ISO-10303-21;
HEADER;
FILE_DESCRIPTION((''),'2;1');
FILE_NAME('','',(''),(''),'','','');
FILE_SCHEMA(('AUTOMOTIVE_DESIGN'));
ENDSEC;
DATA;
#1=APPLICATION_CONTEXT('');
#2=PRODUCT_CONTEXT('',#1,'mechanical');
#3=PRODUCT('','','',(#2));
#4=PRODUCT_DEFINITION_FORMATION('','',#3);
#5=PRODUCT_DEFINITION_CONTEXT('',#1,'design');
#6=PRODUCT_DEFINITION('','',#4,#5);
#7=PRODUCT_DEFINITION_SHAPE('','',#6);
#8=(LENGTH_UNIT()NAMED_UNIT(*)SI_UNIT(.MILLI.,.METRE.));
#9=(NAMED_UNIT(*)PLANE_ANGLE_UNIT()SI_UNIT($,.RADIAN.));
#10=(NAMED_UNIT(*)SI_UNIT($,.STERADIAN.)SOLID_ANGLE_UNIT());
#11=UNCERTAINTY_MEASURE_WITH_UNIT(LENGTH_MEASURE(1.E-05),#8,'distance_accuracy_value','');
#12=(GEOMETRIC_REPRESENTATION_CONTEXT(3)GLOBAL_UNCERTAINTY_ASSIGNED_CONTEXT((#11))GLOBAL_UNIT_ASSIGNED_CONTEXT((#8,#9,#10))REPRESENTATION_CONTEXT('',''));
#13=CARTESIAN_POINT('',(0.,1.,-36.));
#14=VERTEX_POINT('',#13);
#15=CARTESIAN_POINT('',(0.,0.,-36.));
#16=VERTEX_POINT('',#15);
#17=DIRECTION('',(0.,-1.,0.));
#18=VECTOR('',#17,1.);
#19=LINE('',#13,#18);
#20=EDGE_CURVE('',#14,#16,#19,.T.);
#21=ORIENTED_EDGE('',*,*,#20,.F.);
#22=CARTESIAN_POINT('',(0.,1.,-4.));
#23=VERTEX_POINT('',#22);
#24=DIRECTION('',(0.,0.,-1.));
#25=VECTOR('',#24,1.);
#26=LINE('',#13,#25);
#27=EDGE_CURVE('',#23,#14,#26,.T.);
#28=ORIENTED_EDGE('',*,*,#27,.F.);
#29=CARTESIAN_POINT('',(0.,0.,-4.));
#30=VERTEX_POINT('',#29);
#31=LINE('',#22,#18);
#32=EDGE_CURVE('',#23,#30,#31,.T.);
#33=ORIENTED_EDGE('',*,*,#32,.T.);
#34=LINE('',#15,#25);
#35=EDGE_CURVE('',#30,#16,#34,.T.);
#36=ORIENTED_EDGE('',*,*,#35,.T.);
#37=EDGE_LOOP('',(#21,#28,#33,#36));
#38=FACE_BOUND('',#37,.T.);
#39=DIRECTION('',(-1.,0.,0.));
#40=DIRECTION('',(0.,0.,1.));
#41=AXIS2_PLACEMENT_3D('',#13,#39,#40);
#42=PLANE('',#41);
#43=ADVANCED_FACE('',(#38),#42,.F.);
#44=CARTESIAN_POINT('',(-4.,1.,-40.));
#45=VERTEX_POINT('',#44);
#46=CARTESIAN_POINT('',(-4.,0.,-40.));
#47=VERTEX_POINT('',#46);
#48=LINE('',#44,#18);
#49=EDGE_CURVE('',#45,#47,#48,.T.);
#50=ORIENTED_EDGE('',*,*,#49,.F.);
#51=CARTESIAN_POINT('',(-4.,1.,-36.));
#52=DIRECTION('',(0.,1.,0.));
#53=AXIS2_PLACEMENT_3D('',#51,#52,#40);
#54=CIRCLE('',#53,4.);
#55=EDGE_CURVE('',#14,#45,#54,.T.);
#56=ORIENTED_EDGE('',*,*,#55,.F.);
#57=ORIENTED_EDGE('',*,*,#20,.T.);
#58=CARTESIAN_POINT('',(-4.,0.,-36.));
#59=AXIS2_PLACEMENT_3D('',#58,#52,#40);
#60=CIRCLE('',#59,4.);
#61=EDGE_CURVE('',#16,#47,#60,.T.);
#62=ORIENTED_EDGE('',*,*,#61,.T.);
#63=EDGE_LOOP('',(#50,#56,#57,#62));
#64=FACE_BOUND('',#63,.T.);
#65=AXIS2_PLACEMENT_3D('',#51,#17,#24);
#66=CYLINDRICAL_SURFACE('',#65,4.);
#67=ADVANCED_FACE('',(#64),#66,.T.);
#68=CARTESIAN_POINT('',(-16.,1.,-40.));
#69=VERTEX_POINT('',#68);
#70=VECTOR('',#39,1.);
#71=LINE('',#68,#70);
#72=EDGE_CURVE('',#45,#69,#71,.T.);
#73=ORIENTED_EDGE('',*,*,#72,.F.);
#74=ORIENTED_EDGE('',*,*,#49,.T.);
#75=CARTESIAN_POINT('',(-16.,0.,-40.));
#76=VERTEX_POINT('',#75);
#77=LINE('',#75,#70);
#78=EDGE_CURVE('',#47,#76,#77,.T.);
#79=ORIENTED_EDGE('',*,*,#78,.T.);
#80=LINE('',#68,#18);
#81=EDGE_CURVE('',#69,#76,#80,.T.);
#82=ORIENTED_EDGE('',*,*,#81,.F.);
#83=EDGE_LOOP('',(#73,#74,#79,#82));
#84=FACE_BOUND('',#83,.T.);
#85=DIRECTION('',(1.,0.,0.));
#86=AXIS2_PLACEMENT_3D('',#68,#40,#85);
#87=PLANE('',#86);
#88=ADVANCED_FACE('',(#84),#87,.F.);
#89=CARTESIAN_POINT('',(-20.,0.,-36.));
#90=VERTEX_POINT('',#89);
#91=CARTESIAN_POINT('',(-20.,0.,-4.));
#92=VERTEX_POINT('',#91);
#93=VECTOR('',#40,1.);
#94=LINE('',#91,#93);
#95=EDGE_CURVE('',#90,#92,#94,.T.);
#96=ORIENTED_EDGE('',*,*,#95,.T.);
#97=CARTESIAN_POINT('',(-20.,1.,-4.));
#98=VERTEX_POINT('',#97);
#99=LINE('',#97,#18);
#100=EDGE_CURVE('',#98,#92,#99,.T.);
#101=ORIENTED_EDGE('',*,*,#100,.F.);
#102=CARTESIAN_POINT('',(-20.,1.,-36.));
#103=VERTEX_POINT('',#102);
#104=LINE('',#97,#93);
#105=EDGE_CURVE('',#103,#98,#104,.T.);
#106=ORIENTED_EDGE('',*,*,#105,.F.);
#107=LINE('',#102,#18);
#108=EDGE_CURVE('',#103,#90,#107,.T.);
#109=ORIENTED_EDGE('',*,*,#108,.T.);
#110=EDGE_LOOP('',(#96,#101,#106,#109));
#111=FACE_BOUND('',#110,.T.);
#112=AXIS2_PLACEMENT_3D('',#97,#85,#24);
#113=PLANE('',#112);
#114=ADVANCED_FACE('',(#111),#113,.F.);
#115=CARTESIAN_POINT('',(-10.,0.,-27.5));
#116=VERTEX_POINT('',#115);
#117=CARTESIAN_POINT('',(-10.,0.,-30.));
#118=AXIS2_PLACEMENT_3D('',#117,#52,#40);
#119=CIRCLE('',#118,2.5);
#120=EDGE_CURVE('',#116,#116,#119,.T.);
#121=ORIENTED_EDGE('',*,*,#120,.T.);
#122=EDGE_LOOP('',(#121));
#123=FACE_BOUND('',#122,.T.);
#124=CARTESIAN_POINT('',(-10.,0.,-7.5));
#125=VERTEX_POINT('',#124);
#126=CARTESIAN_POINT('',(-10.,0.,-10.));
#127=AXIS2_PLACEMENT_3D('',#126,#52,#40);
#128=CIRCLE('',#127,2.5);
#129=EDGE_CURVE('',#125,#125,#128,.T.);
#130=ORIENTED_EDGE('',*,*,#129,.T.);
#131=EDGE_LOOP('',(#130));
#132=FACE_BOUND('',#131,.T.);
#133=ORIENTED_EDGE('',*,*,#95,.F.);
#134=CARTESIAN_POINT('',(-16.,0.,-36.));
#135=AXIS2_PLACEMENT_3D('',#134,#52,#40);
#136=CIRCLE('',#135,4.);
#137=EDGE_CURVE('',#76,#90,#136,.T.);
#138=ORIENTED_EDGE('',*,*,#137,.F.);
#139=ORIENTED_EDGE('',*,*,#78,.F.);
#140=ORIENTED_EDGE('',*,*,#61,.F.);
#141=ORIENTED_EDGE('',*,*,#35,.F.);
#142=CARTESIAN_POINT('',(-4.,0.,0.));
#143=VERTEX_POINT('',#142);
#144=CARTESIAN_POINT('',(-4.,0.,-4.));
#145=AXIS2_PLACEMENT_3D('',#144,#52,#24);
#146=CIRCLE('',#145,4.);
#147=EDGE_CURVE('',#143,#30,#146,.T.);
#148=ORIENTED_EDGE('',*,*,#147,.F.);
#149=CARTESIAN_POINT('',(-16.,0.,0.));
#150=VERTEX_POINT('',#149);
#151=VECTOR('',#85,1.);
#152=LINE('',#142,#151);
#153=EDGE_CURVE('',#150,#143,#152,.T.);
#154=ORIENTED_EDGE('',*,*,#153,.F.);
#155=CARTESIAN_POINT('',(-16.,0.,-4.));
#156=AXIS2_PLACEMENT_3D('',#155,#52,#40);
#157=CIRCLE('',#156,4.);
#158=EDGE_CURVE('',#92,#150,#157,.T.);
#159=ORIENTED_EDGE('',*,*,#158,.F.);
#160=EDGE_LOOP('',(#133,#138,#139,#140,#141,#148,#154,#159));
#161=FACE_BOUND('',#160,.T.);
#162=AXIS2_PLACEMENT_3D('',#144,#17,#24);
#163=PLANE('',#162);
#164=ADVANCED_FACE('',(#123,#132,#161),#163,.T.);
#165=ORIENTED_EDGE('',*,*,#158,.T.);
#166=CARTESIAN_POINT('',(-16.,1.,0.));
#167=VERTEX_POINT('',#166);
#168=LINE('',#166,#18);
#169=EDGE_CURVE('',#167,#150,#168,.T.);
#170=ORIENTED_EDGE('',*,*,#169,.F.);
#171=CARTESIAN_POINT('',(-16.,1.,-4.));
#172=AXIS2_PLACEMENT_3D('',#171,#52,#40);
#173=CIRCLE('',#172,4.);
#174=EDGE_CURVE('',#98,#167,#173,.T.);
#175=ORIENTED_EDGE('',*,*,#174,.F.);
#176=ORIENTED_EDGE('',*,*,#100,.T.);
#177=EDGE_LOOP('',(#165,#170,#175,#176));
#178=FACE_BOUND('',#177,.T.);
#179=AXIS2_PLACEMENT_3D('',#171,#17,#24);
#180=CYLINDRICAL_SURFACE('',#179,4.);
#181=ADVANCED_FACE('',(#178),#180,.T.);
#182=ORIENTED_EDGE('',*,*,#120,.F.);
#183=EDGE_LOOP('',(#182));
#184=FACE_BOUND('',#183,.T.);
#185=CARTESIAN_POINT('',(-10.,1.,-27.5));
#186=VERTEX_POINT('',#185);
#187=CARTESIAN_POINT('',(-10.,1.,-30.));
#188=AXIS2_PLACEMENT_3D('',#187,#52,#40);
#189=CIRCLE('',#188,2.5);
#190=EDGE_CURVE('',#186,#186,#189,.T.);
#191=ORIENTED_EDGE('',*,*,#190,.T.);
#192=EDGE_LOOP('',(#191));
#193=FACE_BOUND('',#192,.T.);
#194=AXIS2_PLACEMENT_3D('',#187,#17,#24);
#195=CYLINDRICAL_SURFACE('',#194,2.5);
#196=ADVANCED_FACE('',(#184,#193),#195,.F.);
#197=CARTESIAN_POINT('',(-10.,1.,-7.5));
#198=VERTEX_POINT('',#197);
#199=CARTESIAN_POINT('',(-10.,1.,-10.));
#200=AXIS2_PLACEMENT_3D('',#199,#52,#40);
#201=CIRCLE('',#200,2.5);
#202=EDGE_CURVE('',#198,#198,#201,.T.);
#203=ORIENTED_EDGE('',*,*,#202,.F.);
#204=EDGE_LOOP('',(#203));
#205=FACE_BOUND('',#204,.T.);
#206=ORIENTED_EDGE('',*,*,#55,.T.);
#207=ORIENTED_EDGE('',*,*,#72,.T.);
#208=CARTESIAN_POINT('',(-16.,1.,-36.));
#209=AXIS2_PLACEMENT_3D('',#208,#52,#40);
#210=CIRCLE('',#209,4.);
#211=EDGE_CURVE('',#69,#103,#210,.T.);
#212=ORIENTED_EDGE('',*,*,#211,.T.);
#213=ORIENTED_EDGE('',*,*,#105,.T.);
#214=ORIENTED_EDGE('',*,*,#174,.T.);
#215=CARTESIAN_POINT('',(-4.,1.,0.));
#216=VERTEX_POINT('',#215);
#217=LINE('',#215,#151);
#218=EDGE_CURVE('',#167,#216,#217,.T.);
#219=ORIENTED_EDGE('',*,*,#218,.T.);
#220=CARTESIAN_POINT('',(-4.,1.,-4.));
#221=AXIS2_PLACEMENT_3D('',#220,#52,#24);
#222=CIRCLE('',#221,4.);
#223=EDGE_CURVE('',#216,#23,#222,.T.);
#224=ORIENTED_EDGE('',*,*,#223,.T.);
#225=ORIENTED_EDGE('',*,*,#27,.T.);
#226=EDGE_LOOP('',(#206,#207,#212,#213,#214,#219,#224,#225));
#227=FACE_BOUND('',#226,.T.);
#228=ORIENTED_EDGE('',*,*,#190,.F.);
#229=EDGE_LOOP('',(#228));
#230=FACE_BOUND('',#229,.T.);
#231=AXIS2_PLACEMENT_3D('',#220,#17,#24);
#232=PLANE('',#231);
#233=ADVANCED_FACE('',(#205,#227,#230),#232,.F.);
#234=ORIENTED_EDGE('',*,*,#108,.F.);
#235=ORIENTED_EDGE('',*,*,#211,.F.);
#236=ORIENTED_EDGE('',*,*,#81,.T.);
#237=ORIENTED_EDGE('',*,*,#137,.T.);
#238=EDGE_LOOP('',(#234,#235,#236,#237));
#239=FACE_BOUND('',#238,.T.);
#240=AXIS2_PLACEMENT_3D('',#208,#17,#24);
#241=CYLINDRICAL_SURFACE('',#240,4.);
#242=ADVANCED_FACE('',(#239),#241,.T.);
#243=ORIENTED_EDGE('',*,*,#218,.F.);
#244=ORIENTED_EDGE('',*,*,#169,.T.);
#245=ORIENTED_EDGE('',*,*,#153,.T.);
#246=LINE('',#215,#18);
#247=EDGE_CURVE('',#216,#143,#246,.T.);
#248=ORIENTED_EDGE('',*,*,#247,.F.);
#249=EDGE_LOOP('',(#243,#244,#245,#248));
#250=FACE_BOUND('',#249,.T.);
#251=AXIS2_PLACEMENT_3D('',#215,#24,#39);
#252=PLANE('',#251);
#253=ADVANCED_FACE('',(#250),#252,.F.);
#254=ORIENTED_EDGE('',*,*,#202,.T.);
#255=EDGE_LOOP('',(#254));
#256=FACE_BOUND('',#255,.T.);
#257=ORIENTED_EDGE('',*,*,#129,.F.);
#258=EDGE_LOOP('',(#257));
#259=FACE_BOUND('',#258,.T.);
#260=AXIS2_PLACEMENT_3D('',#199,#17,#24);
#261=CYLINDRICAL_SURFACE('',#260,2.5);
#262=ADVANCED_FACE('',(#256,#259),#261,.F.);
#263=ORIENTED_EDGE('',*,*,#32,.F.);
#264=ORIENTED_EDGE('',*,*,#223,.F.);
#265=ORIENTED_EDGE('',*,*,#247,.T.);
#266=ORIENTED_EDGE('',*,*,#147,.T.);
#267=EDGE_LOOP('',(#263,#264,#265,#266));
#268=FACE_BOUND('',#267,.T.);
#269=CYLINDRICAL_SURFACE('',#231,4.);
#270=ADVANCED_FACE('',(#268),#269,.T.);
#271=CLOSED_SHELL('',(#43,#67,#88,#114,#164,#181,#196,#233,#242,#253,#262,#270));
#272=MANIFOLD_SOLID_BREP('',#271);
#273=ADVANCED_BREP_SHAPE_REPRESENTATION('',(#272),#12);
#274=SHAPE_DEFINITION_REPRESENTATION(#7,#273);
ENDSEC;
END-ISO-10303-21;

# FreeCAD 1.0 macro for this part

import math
import FreeCAD as App
import Part
import Sketcher

doc = App.newDocument("Part")
body = doc.addObject("PartDesign::Body", "Body")

# Sketch on XZ plane
sketch1 = doc.addObject("Sketcher::SketchObject", "Sketch")
body.addObject(sketch1)
sketch1.AttachmentSupport = (doc.XZ_Plane, [""])
sketch1.MapMode = "FlatFace"
sketch1.addGeometry(Part.LineSegment(App.Vector(-16, 0, 0), App.Vector(-4, 0, 0)), False)
sketch1.addGeometry(Part.ArcOfCircle(Part.Circle(App.Vector(-4, -4, 0), App.Vector(0, 0, 1), 4), math.radians(0), math.radians(90)), False)
sketch1.addGeometry(Part.LineSegment(App.Vector(0, -4, 0), App.Vector(0, -36, 0)), False)
sketch1.addGeometry(Part.ArcOfCircle(Part.Circle(App.Vector(-4, -36, 0), App.Vector(0, 0, 1), 4), math.radians(-90), math.radians(0)), False)
sketch1.addGeometry(Part.LineSegment(App.Vector(-4, -40, 0), App.Vector(-16, -40, 0)), False)
sketch1.addGeometry(Part.ArcOfCircle(Part.Circle(App.Vector(-16, -36, 0), App.Vector(0, 0, 1), 4), math.radians(180), math.radians(270)), False)
sketch1.addGeometry(Part.LineSegment(App.Vector(-20, -36, 0), App.Vector(-20, -4, 0)), False)
sketch1.addGeometry(Part.ArcOfCircle(Part.Circle(App.Vector(-16, -4, 0), App.Vector(0, 0, 1), 4), math.radians(90), math.radians(180)), False)
sketch1.addGeometry(Part.Circle(App.Vector(-10, -10, 0), App.Vector(0, 0, 1), 2.5), False)
sketch1.addGeometry(Part.Circle(App.Vector(-10, -30, 0), App.Vector(0, 0, 1), 2.5), False)
sketch1.addConstraint(Sketcher.Constraint("Tangent", 0, 2, 1, 2))
sketch1.addConstraint(Sketcher.Constraint("Tangent", 1, 1, 2, 1))
sketch1.addConstraint(Sketcher.Constraint("Tangent", 2, 2, 3, 2))
sketch1.addConstraint(Sketcher.Constraint("Tangent", 3, 1, 4, 1))
sketch1.addConstraint(Sketcher.Constraint("Tangent", 4, 2, 5, 2))
sketch1.addConstraint(Sketcher.Constraint("Tangent", 5, 1, 6, 1))
sketch1.addConstraint(Sketcher.Constraint("Tangent", 6, 2, 7, 2))
sketch1.addConstraint(Sketcher.Constraint("Tangent", 7, 1, 0, 1))
sketch1.addConstraint(Sketcher.Constraint("Horizontal", 0))
sketch1.addConstraint(Sketcher.Constraint("Vertical", 2))
sketch1.addConstraint(Sketcher.Constraint("Horizontal", 4))
sketch1.addConstraint(Sketcher.Constraint("Vertical", 6))
sketch1.addConstraint(Sketcher.Constraint("Equal", 1, 3))
sketch1.addConstraint(Sketcher.Constraint("Equal", 3, 5))
sketch1.addConstraint(Sketcher.Constraint("Equal", 5, 7))
sketch1.addConstraint(Sketcher.Constraint("Equal", 8, 9))
sketch1.addConstraint(Sketcher.Constraint("PointOnObject", 0, 2, -1))
sketch1.addConstraint(Sketcher.Constraint("PointOnObject", 1, 1, -2))
sketch1.addConstraint(Sketcher.Constraint("Vertical", 8, 3, 9, 3))
sketch1.addConstraint(Sketcher.Constraint("Diameter", 8, 5.0))
sketch1.addConstraint(Sketcher.Constraint("Radius", 1, 4.0))
sketch1.addConstraint(Sketcher.Constraint("DistanceX", 0, 1, 0, 2, 12.0))
sketch1.addConstraint(Sketcher.Constraint("DistanceY", 2, 2, 2, 1, 32.0))
sketch1.addConstraint(Sketcher.Constraint("DistanceX", 8, 3, -1, 1, 10.0))
sketch1.addConstraint(Sketcher.Constraint("DistanceY", 8, 3, -1, 1, 10.0))
sketch1.addConstraint(Sketcher.Constraint("DistanceY", 9, 3, -1, 1, 30.0))
pad1 = doc.addObject("PartDesign::Pad", "Pad")
body.addObject(pad1)
pad1.Profile = sketch1
pad1.Length = 1
pad1.Reversed = True

doc.recompute()
